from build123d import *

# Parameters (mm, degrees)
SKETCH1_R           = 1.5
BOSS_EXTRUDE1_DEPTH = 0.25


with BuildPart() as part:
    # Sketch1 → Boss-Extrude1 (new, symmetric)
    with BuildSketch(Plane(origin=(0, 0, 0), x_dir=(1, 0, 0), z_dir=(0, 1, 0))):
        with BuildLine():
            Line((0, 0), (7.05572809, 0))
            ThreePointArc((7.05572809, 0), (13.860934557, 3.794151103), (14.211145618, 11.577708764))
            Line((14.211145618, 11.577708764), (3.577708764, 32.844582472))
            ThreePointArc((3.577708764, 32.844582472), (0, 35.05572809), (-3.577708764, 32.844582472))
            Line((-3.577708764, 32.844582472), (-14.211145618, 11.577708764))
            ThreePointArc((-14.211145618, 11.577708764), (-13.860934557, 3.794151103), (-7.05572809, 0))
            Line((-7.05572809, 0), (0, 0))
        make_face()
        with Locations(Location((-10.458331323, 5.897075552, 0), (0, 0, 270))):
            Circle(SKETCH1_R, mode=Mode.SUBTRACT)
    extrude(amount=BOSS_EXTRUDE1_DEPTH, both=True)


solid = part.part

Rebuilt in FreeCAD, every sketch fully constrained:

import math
import FreeCAD as App
import Part
import Sketcher
from FreeCAD import Vector
Q = App.Units.Quantity

doc = App.newDocument("Part")
body = doc.addObject("PartDesign::Body", "Body")

sketch1 = body.newObject("Sketcher::SketchObject", "Sketch")
sketch1.AttachmentSupport = (doc.getObject("XZ_Plane"), [""])
sketch1.MapMode = "FlatFace"
sketch1.addGeometry([
    Part.ArcOfCircle(Part.Circle(Vector(7.1, -8, 0), Vector(0, 0, 1), 8), math.radians(-27), math.radians(90)),
    Part.LineSegment(Vector(14.2, -11.6, 0), Vector(3.6, -32.8, 0)),
    Part.ArcOfCircle(Part.Circle(Vector(0, -31.1, 0), Vector(0, 0, 1), 4), math.radians(-153), math.radians(-27)),
    Part.LineSegment(Vector(-3.6, -32.8, 0), Vector(-14.2, -11.6, 0)),
    Part.ArcOfCircle(Part.Circle(Vector(-7.1, -8, 0), Vector(0, 0, 1), 8), math.radians(90), math.radians(207)),
    Part.LineSegment(Vector(-7.1, 0, 0), Vector(7.1, 0, 0)),
    Part.Circle(Vector(-10.5, -5.9, 0), Vector(0, 0, 1), 1.5),
], False)
sketch1.addConstraint([
    Sketcher.Constraint("Tangent", 0, 1, 1, 1),
    Sketcher.Constraint("Tangent", 1, 2, 2, 2),
    Sketcher.Constraint("Tangent", 2, 1, 3, 1),
    Sketcher.Constraint("Tangent", 3, 2, 4, 2),
    Sketcher.Constraint("Tangent", 4, 1, 5, 1),
    Sketcher.Constraint("Tangent", 5, 2, 0, 2),
    Sketcher.Constraint("Horizontal", 5),
    Sketcher.Constraint("Equal", 0, 4),
    Sketcher.Constraint("Symmetric", 4, 1, 5, 2, -1, 1),
    Sketcher.Constraint("PointOnObject", 2, 3, -2),
    Sketcher.Constraint("Diameter", 6, Q("3 mm")),
    Sketcher.Constraint("Radius", 0, Q("8 mm")),
    Sketcher.Constraint("Radius", 2, Q("4 mm")),
    Sketcher.Constraint("DistanceX", 5, 1, 5, 2, Q("14.111456 mm")),
    Sketcher.Constraint("DistanceY", 2, 3, -1, 1, Q("31.055728 mm")),
    Sketcher.Constraint("DistanceX", 6, 3, -1, 1, Q("10.458331 mm")),
    Sketcher.Constraint("DistanceY", 6, 3, -1, 1, Q("5.897076 mm")),
])
pad1 = body.newObject("PartDesign::Pad", "Pad")
pad1.Profile = sketch1
pad1.Length = 0.5
pad1.Midplane = True

doc.recompute()
